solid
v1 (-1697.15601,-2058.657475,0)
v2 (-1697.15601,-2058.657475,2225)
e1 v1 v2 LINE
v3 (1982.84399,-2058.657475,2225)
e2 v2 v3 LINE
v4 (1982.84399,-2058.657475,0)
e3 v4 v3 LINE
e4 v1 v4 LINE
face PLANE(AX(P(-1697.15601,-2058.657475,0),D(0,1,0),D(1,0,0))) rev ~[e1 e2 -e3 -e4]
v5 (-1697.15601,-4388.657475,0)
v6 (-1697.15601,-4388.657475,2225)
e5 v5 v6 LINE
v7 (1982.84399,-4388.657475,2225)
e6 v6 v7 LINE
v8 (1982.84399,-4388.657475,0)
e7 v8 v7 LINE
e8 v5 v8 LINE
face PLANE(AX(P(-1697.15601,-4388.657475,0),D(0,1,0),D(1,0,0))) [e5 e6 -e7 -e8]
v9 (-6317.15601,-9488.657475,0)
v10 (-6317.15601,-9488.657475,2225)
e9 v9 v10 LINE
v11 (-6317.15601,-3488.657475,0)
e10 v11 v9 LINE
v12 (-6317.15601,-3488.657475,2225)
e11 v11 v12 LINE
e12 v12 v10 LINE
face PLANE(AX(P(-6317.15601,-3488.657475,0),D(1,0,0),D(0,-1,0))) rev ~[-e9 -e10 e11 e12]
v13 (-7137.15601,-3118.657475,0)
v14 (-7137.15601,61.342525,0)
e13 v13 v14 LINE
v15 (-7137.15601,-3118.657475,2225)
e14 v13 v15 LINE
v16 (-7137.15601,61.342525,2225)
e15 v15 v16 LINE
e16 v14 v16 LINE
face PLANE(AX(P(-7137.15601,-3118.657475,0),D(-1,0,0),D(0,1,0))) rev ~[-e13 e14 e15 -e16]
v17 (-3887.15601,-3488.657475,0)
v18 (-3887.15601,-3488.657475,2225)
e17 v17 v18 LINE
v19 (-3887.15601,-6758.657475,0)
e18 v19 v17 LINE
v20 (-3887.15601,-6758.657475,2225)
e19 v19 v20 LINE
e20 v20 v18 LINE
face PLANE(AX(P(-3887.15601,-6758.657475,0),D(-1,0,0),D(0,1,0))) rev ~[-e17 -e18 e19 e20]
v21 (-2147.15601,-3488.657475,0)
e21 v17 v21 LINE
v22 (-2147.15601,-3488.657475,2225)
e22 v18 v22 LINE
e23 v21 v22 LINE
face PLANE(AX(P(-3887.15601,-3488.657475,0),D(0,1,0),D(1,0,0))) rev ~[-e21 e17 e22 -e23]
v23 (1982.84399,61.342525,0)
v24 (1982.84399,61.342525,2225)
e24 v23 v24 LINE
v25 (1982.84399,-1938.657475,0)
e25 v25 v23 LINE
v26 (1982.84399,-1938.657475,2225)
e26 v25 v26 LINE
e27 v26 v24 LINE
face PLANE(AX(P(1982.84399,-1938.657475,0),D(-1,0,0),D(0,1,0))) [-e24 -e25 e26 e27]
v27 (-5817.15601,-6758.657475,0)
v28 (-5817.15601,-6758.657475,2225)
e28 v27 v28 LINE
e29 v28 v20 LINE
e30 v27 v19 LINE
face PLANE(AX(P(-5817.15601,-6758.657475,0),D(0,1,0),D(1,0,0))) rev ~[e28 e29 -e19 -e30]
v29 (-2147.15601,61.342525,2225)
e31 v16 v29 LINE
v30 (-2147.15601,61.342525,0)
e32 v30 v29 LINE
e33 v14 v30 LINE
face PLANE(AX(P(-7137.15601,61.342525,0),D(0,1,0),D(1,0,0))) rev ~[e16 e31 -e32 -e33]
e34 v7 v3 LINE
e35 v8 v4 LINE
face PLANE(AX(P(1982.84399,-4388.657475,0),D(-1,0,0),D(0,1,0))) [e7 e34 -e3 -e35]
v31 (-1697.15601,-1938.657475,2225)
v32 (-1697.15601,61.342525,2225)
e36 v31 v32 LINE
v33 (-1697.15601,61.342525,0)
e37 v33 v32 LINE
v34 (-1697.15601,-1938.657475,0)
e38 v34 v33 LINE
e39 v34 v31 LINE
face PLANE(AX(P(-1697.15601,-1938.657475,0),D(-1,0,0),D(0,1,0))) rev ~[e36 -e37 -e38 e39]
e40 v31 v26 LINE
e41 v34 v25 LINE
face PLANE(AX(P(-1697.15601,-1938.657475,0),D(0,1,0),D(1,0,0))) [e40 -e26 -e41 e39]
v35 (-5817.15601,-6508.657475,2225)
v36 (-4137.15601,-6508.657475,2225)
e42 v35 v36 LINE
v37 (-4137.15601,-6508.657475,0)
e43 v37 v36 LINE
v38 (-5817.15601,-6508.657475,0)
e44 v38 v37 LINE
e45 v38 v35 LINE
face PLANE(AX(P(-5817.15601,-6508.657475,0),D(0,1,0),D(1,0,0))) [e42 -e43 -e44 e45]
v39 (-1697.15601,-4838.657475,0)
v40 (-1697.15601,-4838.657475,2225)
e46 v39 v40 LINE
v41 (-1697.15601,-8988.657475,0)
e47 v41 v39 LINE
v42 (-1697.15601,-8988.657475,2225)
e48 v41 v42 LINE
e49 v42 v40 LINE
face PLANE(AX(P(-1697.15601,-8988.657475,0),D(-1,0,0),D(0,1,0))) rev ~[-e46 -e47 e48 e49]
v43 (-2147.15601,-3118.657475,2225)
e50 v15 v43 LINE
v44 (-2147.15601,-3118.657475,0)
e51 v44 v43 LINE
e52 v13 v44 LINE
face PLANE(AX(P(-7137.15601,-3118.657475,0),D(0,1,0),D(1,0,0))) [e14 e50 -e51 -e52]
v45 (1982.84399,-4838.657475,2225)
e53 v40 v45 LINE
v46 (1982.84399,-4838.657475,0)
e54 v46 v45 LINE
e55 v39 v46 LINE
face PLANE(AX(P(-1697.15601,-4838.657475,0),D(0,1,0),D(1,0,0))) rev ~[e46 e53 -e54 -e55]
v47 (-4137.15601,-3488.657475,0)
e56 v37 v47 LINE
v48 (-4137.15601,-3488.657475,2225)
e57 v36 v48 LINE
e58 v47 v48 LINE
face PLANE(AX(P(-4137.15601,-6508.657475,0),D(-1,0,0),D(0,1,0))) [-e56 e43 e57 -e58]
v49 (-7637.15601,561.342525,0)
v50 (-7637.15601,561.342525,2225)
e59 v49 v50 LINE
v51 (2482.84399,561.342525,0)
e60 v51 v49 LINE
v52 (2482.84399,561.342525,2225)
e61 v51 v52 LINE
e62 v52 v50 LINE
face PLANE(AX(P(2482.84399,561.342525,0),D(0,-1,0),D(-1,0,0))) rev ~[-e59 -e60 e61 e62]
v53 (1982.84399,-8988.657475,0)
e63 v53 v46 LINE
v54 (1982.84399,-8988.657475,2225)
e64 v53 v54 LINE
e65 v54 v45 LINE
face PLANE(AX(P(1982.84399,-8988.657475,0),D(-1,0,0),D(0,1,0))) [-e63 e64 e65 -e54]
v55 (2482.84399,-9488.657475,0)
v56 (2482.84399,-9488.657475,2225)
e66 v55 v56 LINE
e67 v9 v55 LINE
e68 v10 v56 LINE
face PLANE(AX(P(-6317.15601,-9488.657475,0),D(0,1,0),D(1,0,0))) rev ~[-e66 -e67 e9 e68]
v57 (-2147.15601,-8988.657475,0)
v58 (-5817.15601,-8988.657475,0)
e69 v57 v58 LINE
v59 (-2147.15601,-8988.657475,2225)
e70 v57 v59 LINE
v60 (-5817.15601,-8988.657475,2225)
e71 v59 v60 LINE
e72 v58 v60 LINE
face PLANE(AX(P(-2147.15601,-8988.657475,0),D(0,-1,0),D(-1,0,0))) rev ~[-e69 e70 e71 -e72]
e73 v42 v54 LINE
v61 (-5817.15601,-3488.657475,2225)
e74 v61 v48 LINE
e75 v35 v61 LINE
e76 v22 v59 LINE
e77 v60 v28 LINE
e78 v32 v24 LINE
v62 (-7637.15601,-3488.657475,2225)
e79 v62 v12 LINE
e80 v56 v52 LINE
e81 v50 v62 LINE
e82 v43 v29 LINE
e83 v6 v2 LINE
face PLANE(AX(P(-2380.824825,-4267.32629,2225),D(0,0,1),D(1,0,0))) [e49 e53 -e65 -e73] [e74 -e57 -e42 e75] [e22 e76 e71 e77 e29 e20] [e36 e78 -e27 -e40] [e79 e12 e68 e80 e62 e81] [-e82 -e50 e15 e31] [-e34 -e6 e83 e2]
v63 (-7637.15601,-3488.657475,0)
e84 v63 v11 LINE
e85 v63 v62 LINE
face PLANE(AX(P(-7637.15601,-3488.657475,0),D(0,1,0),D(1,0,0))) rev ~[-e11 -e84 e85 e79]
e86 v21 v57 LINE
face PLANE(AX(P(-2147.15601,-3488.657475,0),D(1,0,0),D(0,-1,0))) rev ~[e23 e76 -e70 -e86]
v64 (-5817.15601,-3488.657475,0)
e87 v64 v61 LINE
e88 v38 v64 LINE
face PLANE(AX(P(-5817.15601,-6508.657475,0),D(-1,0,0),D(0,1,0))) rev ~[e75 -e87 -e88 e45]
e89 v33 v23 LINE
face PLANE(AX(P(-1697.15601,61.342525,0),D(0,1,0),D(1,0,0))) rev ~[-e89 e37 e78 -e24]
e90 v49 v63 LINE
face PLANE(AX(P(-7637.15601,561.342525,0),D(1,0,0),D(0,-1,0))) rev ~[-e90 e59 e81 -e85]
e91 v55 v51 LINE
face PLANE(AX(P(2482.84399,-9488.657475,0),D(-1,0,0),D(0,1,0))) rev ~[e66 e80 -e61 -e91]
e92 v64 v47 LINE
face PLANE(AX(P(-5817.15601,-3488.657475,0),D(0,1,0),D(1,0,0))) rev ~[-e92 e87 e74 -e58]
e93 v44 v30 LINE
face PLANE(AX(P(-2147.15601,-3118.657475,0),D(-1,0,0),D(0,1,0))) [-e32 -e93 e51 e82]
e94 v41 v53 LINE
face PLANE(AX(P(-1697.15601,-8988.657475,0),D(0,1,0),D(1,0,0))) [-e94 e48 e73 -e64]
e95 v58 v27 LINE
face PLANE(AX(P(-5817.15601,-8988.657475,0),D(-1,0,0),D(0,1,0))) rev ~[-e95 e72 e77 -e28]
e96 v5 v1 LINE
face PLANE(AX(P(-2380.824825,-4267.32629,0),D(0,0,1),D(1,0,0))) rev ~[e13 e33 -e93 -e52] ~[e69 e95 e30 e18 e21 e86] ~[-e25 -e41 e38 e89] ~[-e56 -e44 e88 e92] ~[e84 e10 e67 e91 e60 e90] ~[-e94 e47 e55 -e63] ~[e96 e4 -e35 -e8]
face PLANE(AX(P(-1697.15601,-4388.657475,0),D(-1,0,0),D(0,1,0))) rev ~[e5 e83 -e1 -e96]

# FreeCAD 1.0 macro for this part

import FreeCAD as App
import Part
import Sketcher

V = App.Vector


def add_polygon(sketch, points):
    """Adds a closed chain of lines whose ends are joined by coincident constraints."""
    first, n = sketch.GeometryCount, len(points)
    for a, b in zip(points, points[1:] + points[:1]):
        sketch.addGeometry(Part.LineSegment(App.Vector(*a, 0), App.Vector(*b, 0)), False)
    for i in range(n):
        sketch.addConstraint(Sketcher.Constraint("Coincident", first + i, 2, first + (i + 1) % n, 1))

doc = App.newDocument("Part")
body = doc.addObject("PartDesign::Body", "Body")

sketch1 = body.newObject("Sketcher::SketchObject", "Sketch")
sketch1.AttachmentSupport = (doc.getObject("XY_Plane"), [""])
sketch1.MapMode = "FlatFace"
add_polygon(sketch1, [(-6317, -3489), (-6317, -9489), (2483, -9489), (2483, 561), (-7637, 561), (-7637, -3489)])
add_polygon(sketch1, [(-4137, -6509), (-5817, -6509), (-5817, -3489), (-4137, -3489)])
add_polygon(sketch1, [(-2147, -3489), (-2147, -8989), (-5817, -8989), (-5817, -6759), (-3887, -6759), (-3887, -3489)])
add_polygon(sketch1, [(1983, -8989), (-1697, -8989), (-1697, -4839), (1983, -4839)])
add_polygon(sketch1, [(-2147, -3119), (-7137, -3119), (-7137, 61), (-2147, 61)])
add_polygon(sketch1, [(1983, -4389), (-1697, -4389), (-1697, -2059), (1983, -2059)])
add_polygon(sketch1, [(1983, -1939), (-1697, -1939), (-1697, 61), (1983, 61)])
sketch1.addConstraint([
    Sketcher.Constraint("Vertical", 0),
    Sketcher.Constraint("Horizontal", 1),
    Sketcher.Constraint("Vertical", 2),
    Sketcher.Constraint("Horizontal", 3),
    Sketcher.Constraint("Vertical", 4),
    Sketcher.Constraint("Horizontal", 5),
    Sketcher.Constraint("Horizontal", 6),
    Sketcher.Constraint("Vertical", 7),
    Sketcher.Constraint("Horizontal", 8),
    Sketcher.Constraint("Vertical", 9),
    Sketcher.Constraint("Vertical", 10),
    Sketcher.Constraint("Horizontal", 11),
    Sketcher.Constraint("Vertical", 12),
    Sketcher.Constraint("Horizontal", 13),
    Sketcher.Constraint("Vertical", 14),
    Sketcher.Constraint("Horizontal", 15),
    Sketcher.Constraint("Horizontal", 16),
    Sketcher.Constraint("Vertical", 17),
    Sketcher.Constraint("Horizontal", 18),
    Sketcher.Constraint("Vertical", 19),
    Sketcher.Constraint("Horizontal", 20),
    Sketcher.Constraint("Vertical", 21),
    Sketcher.Constraint("Horizontal", 22),
    Sketcher.Constraint("Vertical", 23),
    Sketcher.Constraint("Horizontal", 24),
    Sketcher.Constraint("Vertical", 25),
    Sketcher.Constraint("Horizontal", 26),
    Sketcher.Constraint("Vertical", 27),
    Sketcher.Constraint("Horizontal", 28),
    Sketcher.Constraint("Vertical", 29),
    Sketcher.Constraint("Horizontal", 30),
    Sketcher.Constraint("Vertical", 31),
    Sketcher.Constraint("Horizontal", 5, 2, 7, 2),
    Sketcher.Constraint("Horizontal", 8, 2, 14, 2),
    Sketcher.Constraint("Horizontal", 11, 2, 16, 2),
    Sketcher.Constraint("Horizontal", 22, 2, 29, 2),
    Sketcher.Constraint("Vertical", 7, 2, 11, 2),
    Sketcher.Constraint("Vertical", 15, 2, 22, 2),
    Sketcher.Constraint("Vertical", 17, 2, 24, 2),
    Sketcher.Constraint("Vertical", 19, 2, 26, 2),
    Sketcher.Constraint("Vertical", 25, 2, 28, 2),
    Sketcher.Constraint("Vertical", 27, 2, 30, 2),
    Sketcher.Constraint("DistanceX", 1, 1, 1, 2, 8800.0),
    Sketcher.Constraint("DistanceX", 3, 2, 3, 1, 10120.0),
    Sketcher.Constraint("DistanceX", 6, 2, 6, 1, 1680.0),
    Sketcher.Constraint("DistanceX", 11, 2, 11, 1, 3670.0),
    Sketcher.Constraint("DistanceX", 13, 1, 13, 2, 1930.0),
    Sketcher.Constraint("DistanceX", 16, 2, 16, 1, 3680.0),
    Sketcher.Constraint("DistanceX", 20, 2, 20, 1, 4990.0),
    Sketcher.Constraint("DistanceY", 0, 2, 0, 1, 6000.0),
    Sketcher.Constraint("DistanceY", 2, 1, 2, 2, 10050.0),
    Sketcher.Constraint("DistanceY", 7, 1, 7, 2, 3020.0),
    Sketcher.Constraint("DistanceY", 10, 2, 10, 1, 5500.0),
    Sketcher.Constraint("DistanceY", 12, 1, 12, 2, 2230.0),
    Sketcher.Constraint("DistanceY", 17, 1, 17, 2, 4150.0),
    Sketcher.Constraint("DistanceY", 21, 1, 21, 2, 3180.0),
    Sketcher.Constraint("DistanceY", 25, 1, 25, 2, 2330.0),
    Sketcher.Constraint("DistanceY", 29, 1, 29, 2, 2000.0),
    Sketcher.Constraint("DistanceX", 0, 2, 6, 2, 500.0),
    Sketcher.Constraint("DistanceX", 10, 2, 16, 2, 450.0),
    Sketcher.Constraint("DistanceY", 4, 2, 20, 2, 370.0),
    Sketcher.Constraint("DistanceY", 17, 2, 24, 2, 450.0),
    Sketcher.Constraint("DistanceX", 0, 2, -1, 1, 6317.15601),
    Sketcher.Constraint("DistanceY", 0, 2, -1, 1, 9488.657475),
])
pad1 = body.newObject("PartDesign::Pad", "Pad")
pad1.Profile = sketch1
pad1.Length = 2225

doc.recompute()
